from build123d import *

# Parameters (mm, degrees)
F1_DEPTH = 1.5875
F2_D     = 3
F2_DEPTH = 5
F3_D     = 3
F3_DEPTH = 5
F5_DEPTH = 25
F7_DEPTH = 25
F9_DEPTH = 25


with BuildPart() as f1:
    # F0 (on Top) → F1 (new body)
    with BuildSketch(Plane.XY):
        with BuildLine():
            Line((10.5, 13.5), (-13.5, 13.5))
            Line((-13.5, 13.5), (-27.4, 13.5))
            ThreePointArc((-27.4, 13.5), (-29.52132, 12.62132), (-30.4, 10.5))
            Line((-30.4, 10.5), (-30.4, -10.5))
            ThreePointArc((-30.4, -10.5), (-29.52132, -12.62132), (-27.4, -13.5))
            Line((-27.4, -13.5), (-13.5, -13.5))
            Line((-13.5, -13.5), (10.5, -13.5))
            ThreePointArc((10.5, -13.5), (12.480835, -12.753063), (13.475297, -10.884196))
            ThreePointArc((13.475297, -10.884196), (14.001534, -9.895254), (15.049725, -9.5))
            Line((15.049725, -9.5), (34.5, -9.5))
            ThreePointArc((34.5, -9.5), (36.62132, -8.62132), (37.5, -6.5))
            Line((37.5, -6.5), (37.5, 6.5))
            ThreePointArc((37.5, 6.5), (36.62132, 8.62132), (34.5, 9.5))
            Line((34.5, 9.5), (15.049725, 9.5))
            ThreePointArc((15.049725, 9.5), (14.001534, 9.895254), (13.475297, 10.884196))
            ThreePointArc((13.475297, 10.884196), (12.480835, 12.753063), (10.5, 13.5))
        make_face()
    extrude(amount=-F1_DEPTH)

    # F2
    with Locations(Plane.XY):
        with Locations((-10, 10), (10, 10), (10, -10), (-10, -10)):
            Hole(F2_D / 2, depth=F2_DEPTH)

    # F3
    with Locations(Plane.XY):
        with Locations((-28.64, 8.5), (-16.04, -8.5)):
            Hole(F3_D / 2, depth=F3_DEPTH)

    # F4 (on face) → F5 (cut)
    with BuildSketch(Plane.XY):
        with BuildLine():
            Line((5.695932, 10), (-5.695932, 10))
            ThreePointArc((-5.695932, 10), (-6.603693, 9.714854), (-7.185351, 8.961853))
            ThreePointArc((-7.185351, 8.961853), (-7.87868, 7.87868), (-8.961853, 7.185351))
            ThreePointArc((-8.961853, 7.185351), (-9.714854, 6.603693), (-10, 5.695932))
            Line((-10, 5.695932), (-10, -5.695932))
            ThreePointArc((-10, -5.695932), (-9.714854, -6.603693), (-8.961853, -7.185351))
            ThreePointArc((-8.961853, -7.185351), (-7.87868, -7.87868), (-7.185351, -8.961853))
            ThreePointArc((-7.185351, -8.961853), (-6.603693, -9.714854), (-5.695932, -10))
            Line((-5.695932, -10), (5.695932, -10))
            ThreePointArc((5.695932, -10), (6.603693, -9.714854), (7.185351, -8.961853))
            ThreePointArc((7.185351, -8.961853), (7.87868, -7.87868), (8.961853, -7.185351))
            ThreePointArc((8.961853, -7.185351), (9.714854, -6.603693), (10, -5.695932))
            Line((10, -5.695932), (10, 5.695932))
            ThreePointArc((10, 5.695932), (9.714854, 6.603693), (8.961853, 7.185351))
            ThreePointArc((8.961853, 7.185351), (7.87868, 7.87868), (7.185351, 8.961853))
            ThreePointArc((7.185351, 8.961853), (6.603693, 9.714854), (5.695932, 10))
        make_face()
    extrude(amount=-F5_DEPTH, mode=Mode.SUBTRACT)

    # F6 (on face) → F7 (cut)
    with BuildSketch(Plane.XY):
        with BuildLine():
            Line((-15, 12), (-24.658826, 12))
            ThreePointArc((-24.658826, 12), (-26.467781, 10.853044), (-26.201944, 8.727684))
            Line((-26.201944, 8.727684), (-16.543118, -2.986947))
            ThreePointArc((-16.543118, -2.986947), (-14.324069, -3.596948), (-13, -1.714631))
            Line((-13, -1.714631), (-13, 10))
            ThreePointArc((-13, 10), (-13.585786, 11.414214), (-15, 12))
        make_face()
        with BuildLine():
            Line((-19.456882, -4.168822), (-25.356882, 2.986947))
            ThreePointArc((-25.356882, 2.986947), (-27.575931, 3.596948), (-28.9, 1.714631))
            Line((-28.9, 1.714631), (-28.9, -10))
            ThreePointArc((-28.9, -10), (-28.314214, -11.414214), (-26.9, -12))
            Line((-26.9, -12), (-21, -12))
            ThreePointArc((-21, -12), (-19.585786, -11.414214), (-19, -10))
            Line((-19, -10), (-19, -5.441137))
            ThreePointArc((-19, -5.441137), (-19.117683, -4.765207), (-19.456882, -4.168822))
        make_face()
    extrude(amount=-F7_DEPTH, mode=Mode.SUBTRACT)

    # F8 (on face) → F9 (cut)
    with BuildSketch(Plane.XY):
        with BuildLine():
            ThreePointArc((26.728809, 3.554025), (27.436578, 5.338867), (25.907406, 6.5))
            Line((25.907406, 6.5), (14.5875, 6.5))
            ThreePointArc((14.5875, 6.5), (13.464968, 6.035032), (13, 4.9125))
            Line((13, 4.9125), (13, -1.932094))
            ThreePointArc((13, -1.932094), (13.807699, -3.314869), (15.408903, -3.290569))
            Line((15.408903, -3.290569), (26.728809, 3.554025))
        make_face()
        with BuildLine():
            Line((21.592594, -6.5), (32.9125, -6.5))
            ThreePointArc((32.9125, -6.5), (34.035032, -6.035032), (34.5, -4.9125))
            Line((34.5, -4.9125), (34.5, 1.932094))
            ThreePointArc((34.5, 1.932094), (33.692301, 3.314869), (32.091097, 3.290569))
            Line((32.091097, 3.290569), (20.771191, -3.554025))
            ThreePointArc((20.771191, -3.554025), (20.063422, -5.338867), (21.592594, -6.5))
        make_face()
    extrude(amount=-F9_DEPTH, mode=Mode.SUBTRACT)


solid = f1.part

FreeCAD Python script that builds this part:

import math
import FreeCAD as App
import Part
import Sketcher

doc = App.newDocument("Part")
params = doc.addObject("Spreadsheet::Sheet", "Params")
for row, (alias, value) in enumerate([
    ("sketch1_radius", "3.000001 mm"),
    ("sketch1_height", "21 mm"),
    ("sketch1_height2", "13 mm"),
    ("sketch1_width", "37.9 mm"),
    ("pad1_length", "1.5875 mm"),
    ("sketch2_diameter", "3 mm"),
    ("hole_diameter", "3 mm"),
    ("hole_depth", "5 mm"),
    ("sketch3_diameter", "3 mm"),
    ("hole2_diameter", "3 mm"),
    ("hole2_depth", "5 mm"),
    ("sketch4_radius", "3.000002 mm"),
    ("pocket1_length", "25 mm"),
    ("sketch5_radius", "2 mm"),
    ("sketch5_width", "5.9 mm"),
    ("pocket2_length", "25 mm"),
    ("pocket3_length", "25 mm"),
], start=1):
    params.set(f"A{row}", alias)
    params.set(f"B{row}", "=" + value)
    params.setAlias(f"B{row}", alias)

body = doc.addObject("PartDesign::Body", "Body")

sketch1 = body.newObject("Sketcher::SketchObject", "Sketch")
sketch1.AttachmentSupport = (doc.getObject("XY_Plane"), [""])
sketch1.MapMode = "FlatFace"
sketch1.addGeometry([
    Part.LineSegment(App.Vector(10.5, 13.5, 0), App.Vector(-27.4, 13.5, 0)),
    Part.ArcOfCircle(Part.Circle(App.Vector(-27.4, 10.5, 0), App.Vector(0, 0, 1), 3), math.radians(90), math.radians(180)),
    Part.LineSegment(App.Vector(-30.4, 10.5, 0), App.Vector(-30.4, -10.5, 0)),
    Part.ArcOfCircle(Part.Circle(App.Vector(-27.4, -10.5, 0), App.Vector(0, 0, 1), 3), math.radians(-180), math.radians(-90)),
    Part.LineSegment(App.Vector(-27.4, -13.5, 0), App.Vector(10.5, -13.5, 0)),
    Part.ArcOfCircle(Part.Circle(App.Vector(10.5, -10.5, 0), App.Vector(0, 0, 1), 3), math.radians(-90), math.radians(-7)),
    Part.ArcOfCircle(Part.Circle(App.Vector(15, -11.1, 0), App.Vector(0, 0, 1), 1.6), math.radians(90), math.radians(173)),
    Part.LineSegment(App.Vector(15, -9.5, 0), App.Vector(34.5, -9.5, 0)),
    Part.ArcOfCircle(Part.Circle(App.Vector(34.5, -6.5, 0), App.Vector(0, 0, 1), 3), math.radians(-90), math.radians(0)),
    Part.LineSegment(App.Vector(37.5, -6.5, 0), App.Vector(37.5, 6.5, 0)),
    Part.ArcOfCircle(Part.Circle(App.Vector(34.5, 6.5, 0), App.Vector(0, 0, 1), 3), math.radians(0), math.radians(90)),
    Part.LineSegment(App.Vector(34.5, 9.5, 0), App.Vector(15, 9.5, 0)),
    Part.ArcOfCircle(Part.Circle(App.Vector(15, 11.1, 0), App.Vector(0, 0, 1), 1.6), math.radians(-173), math.radians(-90)),
    Part.ArcOfCircle(Part.Circle(App.Vector(10.5, 10.5, 0), App.Vector(0, 0, 1), 3), math.radians(7), math.radians(90)),
], False)
sketch1.addConstraint([
    Sketcher.Constraint("Tangent", 0, 2, 1, 1),
    Sketcher.Constraint("Tangent", 1, 2, 2, 1),
    Sketcher.Constraint("Tangent", 2, 2, 3, 1),
    Sketcher.Constraint("Tangent", 3, 2, 4, 1),
    Sketcher.Constraint("Tangent", 4, 2, 5, 1),
    Sketcher.Constraint("Tangent", 5, 2, 6, 2),
    Sketcher.Constraint("Tangent", 6, 1, 7, 1),
    Sketcher.Constraint("Tangent", 7, 2, 8, 1),
    Sketcher.Constraint("Tangent", 8, 2, 9, 1),
    Sketcher.Constraint("Tangent", 9, 2, 10, 1),
    Sketcher.Constraint("Tangent", 10, 2, 11, 1),
    Sketcher.Constraint("Tangent", 11, 2, 12, 2),
    Sketcher.Constraint("Tangent", 12, 1, 13, 1),
    Sketcher.Constraint("Tangent", 13, 2, 0, 1),
    Sketcher.Constraint("Horizontal", 0),
    Sketcher.Constraint("Vertical", 2),
    Sketcher.Constraint("Horizontal", 4),
    Sketcher.Constraint("Horizontal", 7),
    Sketcher.Constraint("Vertical", 9),
    Sketcher.Constraint("Horizontal", 11),
    Sketcher.Constraint("Equal", 1, 3),
    Sketcher.Constraint("Equal", 3, 5),
    Sketcher.Constraint("Equal", 5, 8),
    Sketcher.Constraint("Equal", 8, 10),
    Sketcher.Constraint("Equal", 6, 12),
    Sketcher.Constraint("Equal", 10, 13),
    Sketcher.Constraint("Symmetric", 6, 3, 12, 3, -1),
    Sketcher.Constraint("Vertical", 5, 3, 13, 3),
    Sketcher.Constraint("Radius", 1, 3.000001),
    Sketcher.Constraint("DistanceY", 2, 2, 2, 1, 21.0),
    Sketcher.Constraint("DistanceY", 9, 1, 9, 2, 13.0),
    Sketcher.Constraint("DistanceX", 0, 2, 0, 1, 37.9),
    Sketcher.Constraint("DistanceX", 5, 3, 8, 3, 23.999999),
    Sketcher.Constraint("DistanceX", 1, 3, -1, 1, 27.399999),
    Sketcher.Constraint("Radius", 6, 1.587501),
])
sketch1.setExpression("Constraints[28]", "Params.sketch1_radius")
sketch1.setExpression("Constraints[29]", "Params.sketch1_height")
sketch1.setExpression("Constraints[30]", "Params.sketch1_height2")
sketch1.setExpression("Constraints[31]", "Params.sketch1_width")
pad1 = body.newObject("PartDesign::Pad", "Pad")
pad1.Profile = sketch1
pad1.setExpression("Length", "Params.pad1_length")
pad1.Reversed = True

sketch2 = body.newObject("Sketcher::SketchObject", "Sketch001")
sketch2.AttachmentSupport = (doc.getObject("XY_Plane"), [""])
sketch2.MapMode = "FlatFace"
sketch2.addGeometry([
    Part.Circle(App.Vector(-10, 10, 0), App.Vector(0, 0, 1), 1.5),
    Part.Circle(App.Vector(10, 10, 0), App.Vector(0, 0, 1), 1.5),
    Part.Circle(App.Vector(10, -10, 0), App.Vector(0, 0, 1), 1.5),
    Part.Circle(App.Vector(-10, -10, 0), App.Vector(0, 0, 1), 1.5),
], False)
sketch2.addConstraint([
    Sketcher.Constraint("Equal", 0, 1),
    Sketcher.Constraint("Equal", 1, 2),
    Sketcher.Constraint("Equal", 2, 3),
    Sketcher.Constraint("Symmetric", 0, 3, 2, 3, -1, 1),
    Sketcher.Constraint("Symmetric", 1, 3, 3, 3, -1, 1),
    Sketcher.Constraint("Symmetric", 0, 3, 1, 3, -2),
    Sketcher.Constraint("Diameter", 0, 3.0),
    Sketcher.Constraint("DistanceX", 0, 3, -1, 1, 10.0),
    Sketcher.Constraint("DistanceY", -1, 1, 0, 3, 10.0),
])
sketch2.setExpression("Constraints[6]", "Params.sketch2_diameter")
doc.recompute()
hole = body.newObject("PartDesign::Hole", "Hole")
hole.Profile = sketch2
hole.ThreadType = "None"
hole.setExpression("Diameter", "Params.hole_diameter")
hole.DepthType = "Dimension"
hole.setExpression("Depth", "Params.hole_depth")
hole.DrillPoint = "Flat"

sketch3 = body.newObject("Sketcher::SketchObject", "Sketch002")
sketch3.AttachmentSupport = (doc.getObject("XY_Plane"), [""])
sketch3.MapMode = "FlatFace"
sketch3.addGeometry([
    Part.Circle(App.Vector(-28.6, 8.5, 0), App.Vector(0, 0, 1), 1.5),
    Part.Circle(App.Vector(-16, -8.5, 0), App.Vector(0, 0, 1), 1.5),
], False)
sketch3.addConstraint([
    Sketcher.Constraint("Equal", 0, 1),
    Sketcher.Constraint("Diameter", 0, 3.0),
    Sketcher.Constraint("DistanceY", 1, 3, 0, 3, 17.0),
    Sketcher.Constraint("DistanceY", -1, 1, 0, 3, 8.5),
    Sketcher.Constraint("DistanceX", 0, 3, 1, 3, 12.6),
    Sketcher.Constraint("DistanceX", 0, 3, -1, 1, 28.64),
])
sketch3.setExpression("Constraints[1]", "Params.sketch3_diameter")
doc.recompute()
hole2 = body.newObject("PartDesign::Hole", "Hole001")
hole2.Profile = sketch3
hole2.ThreadType = "None"
hole2.setExpression("Diameter", "Params.hole2_diameter")
hole2.DepthType = "Dimension"
hole2.setExpression("Depth", "Params.hole2_depth")
hole2.DrillPoint = "Flat"

sketch4 = body.newObject("Sketcher::SketchObject", "Sketch003")
sketch4.AttachmentSupport = (doc.getObject("XY_Plane"), [""])
sketch4.MapMode = "FlatFace"
sketch4.addGeometry([
    Part.LineSegment(App.Vector(5.7, 10, 0), App.Vector(-5.7, 10, 0)),
    Part.ArcOfCircle(Part.Circle(App.Vector(-5.7, 8.4, 0), App.Vector(0, 0, 1), 1.6), math.radians(90), math.radians(160)),
    Part.ArcOfCircle(Part.Circle(App.Vector(-10, 10, 0), App.Vector(0, 0, 1), 3), math.radians(-70), math.radians(-20)),
    Part.ArcOfCircle(Part.Circle(App.Vector(-8.4, 5.7, 0), App.Vector(0, 0, 1), 1.6), math.radians(110), math.radians(180)),
    Part.LineSegment(App.Vector(-10, 5.7, 0), App.Vector(-10, -5.7, 0)),
    Part.ArcOfCircle(Part.Circle(App.Vector(-8.4, -5.7, 0), App.Vector(0, 0, 1), 1.6), math.radians(-180), math.radians(-110)),
    Part.ArcOfCircle(Part.Circle(App.Vector(-10, -10, 0), App.Vector(0, 0, 1), 3), math.radians(20), math.radians(70)),
    Part.ArcOfCircle(Part.Circle(App.Vector(-5.7, -8.4, 0), App.Vector(0, 0, 1), 1.6), math.radians(-160), math.radians(-90)),
    Part.LineSegment(App.Vector(-5.7, -10, 0), App.Vector(5.7, -10, 0)),
    Part.ArcOfCircle(Part.Circle(App.Vector(5.7, -8.4, 0), App.Vector(0, 0, 1), 1.6), math.radians(-90), math.radians(-20)),
    Part.ArcOfCircle(Part.Circle(App.Vector(10, -10, 0), App.Vector(0, 0, 1), 3), math.radians(110), math.radians(160)),
    Part.ArcOfCircle(Part.Circle(App.Vector(8.4, -5.7, 0), App.Vector(0, 0, 1), 1.6), math.radians(-70), math.radians(0)),
    Part.LineSegment(App.Vector(10, -5.7, 0), App.Vector(10, 5.7, 0)),
    Part.ArcOfCircle(Part.Circle(App.Vector(8.4, 5.7, 0), App.Vector(0, 0, 1), 1.6), math.radians(0), math.radians(70)),
    Part.ArcOfCircle(Part.Circle(App.Vector(10, 10, 0), App.Vector(0, 0, 1), 3), math.radians(-160), math.radians(-110)),
    Part.ArcOfCircle(Part.Circle(App.Vector(5.7, 8.4, 0), App.Vector(0, 0, 1), 1.6), math.radians(20), math.radians(90)),
], False)
sketch4.addConstraint([
    Sketcher.Constraint("Tangent", 0, 2, 1, 1),
    Sketcher.Constraint("Tangent", 1, 2, 2, 2),
    Sketcher.Constraint("Tangent", 2, 1, 3, 1),
    Sketcher.Constraint("Tangent", 3, 2, 4, 1),
    Sketcher.Constraint("Tangent", 4, 2, 5, 1),
    Sketcher.Constraint("Tangent", 5, 2, 6, 2),
    Sketcher.Constraint("Tangent", 6, 1, 7, 1),
    Sketcher.Constraint("Tangent", 7, 2, 8, 1),
    Sketcher.Constraint("Tangent", 8, 2, 9, 1),
    Sketcher.Constraint("Tangent", 9, 2, 10, 2),
    Sketcher.Constraint("Tangent", 10, 1, 11, 1),
    Sketcher.Constraint("Tangent", 11, 2, 12, 1),
    Sketcher.Constraint("Tangent", 12, 2, 13, 1),
    Sketcher.Constraint("Tangent", 13, 2, 14, 2),
    Sketcher.Constraint("Tangent", 14, 1, 15, 1),
    Sketcher.Constraint("Tangent", 15, 2, 0, 1),
    Sketcher.Constraint("Horizontal", 0),
    Sketcher.Constraint("Vertical", 4),
    Sketcher.Constraint("Horizontal", 8),
    Sketcher.Constraint("Vertical", 12),
    Sketcher.Constraint("Equal", 1, 3),
    Sketcher.Constraint("Equal", 3, 5),
    Sketcher.Constraint("Equal", 2, 6),
    Sketcher.Constraint("Equal", 5, 7),
    Sketcher.Constraint("Equal", 7, 9),
    Sketcher.Constraint("Equal", 6, 10),
    Sketcher.Constraint("Equal", 9, 11),
    Sketcher.Constraint("Equal", 11, 13),
    Sketcher.Constraint("Equal", 10, 14),
    Sketcher.Constraint("Equal", 13, 15),
    Sketcher.Constraint("Symmetric", 1, 3, 9, 3, -1, 1),
    Sketcher.Constraint("Symmetric", 3, 3, 11, 3, -1, 1),
    Sketcher.Constraint("Symmetric", 6, 3, 14, 3, -1, 1),
    Sketcher.Constraint("Symmetric", 6, 3, 10, 3, -2),
    Sketcher.Constraint("Horizontal", 14, 3, 0, 2),
    Sketcher.Constraint("Vertical", 6, 3, 3, 2),
    Sketcher.Constraint("Equal", 8, 4),
    Sketcher.Constraint("Radius", 2, 3.000002),
    Sketcher.Constraint("DistanceX", 2, 3, -1, 1, 10.000001),
    Sketcher.Constraint("Radius", 1, 1.587502),
])
sketch4.setExpression("Constraints[37]", "Params.sketch4_radius")
pocket1 = body.newObject("PartDesign::Pocket", "Pocket")
pocket1.Profile = sketch4
pocket1.setExpression("Length", "Params.pocket1_length")

sketch5 = body.newObject("Sketcher::SketchObject", "Sketch004")
sketch5.AttachmentSupport = (doc.getObject("XY_Plane"), [""])
sketch5.MapMode = "FlatFace"
sketch5.addGeometry([
    Part.LineSegment(App.Vector(-15, 12, 0), App.Vector(-24.7, 12, 0)),
    Part.ArcOfCircle(Part.Circle(App.Vector(-24.7, 10, 0), App.Vector(0, 0, 1), 2), math.radians(90), math.radians(220)),
    Part.LineSegment(App.Vector(-26.2, 8.7, 0), App.Vector(-16.5, -3, 0)),
    Part.ArcOfCircle(Part.Circle(App.Vector(-15, -1.7, 0), App.Vector(0, 0, 1), 2), math.radians(-140), math.radians(0)),
    Part.LineSegment(App.Vector(-13, -1.7, 0), App.Vector(-13, 10, 0)),
    Part.ArcOfCircle(Part.Circle(App.Vector(-15, 10, 0), App.Vector(0, 0, 1), 2), math.radians(0), math.radians(90)),
    Part.LineSegment(App.Vector(-19.5, -4.2, 0), App.Vector(-25.4, 3, 0)),
    Part.ArcOfCircle(Part.Circle(App.Vector(-26.9, 1.7, 0), App.Vector(0, 0, 1), 2), math.radians(40), math.radians(180)),
    Part.LineSegment(App.Vector(-28.9, 1.7, 0), App.Vector(-28.9, -10, 0)),
    Part.ArcOfCircle(Part.Circle(App.Vector(-26.9, -10, 0), App.Vector(0, 0, 1), 2), math.radians(180), math.radians(270)),
    Part.LineSegment(App.Vector(-26.9, -12, 0), App.Vector(-21, -12, 0)),
    Part.ArcOfCircle(Part.Circle(App.Vector(-21, -10, 0), App.Vector(0, 0, 1), 2), math.radians(-90), math.radians(0)),
    Part.LineSegment(App.Vector(-19, -10, 0), App.Vector(-19, -5.4, 0)),
    Part.ArcOfCircle(Part.Circle(App.Vector(-21, -5.4, 0), App.Vector(0, 0, 1), 2), math.radians(0), math.radians(40)),
], False)
sketch5.addConstraint([
    Sketcher.Constraint("Tangent", 0, 2, 1, 1),
    Sketcher.Constraint("Tangent", 1, 2, 2, 1),
    Sketcher.Constraint("Tangent", 2, 2, 3, 1),
    Sketcher.Constraint("Tangent", 3, 2, 4, 1),
    Sketcher.Constraint("Tangent", 4, 2, 5, 1),
    Sketcher.Constraint("Tangent", 5, 2, 0, 1),
    Sketcher.Constraint("Tangent", 6, 2, 7, 1),
    Sketcher.Constraint("Tangent", 7, 2, 8, 1),
    Sketcher.Constraint("Tangent", 8, 2, 9, 1),
    Sketcher.Constraint("Tangent", 9, 2, 10, 1),
    Sketcher.Constraint("Tangent", 10, 2, 11, 1),
    Sketcher.Constraint("Tangent", 11, 2, 12, 1),
    Sketcher.Constraint("Tangent", 12, 2, 13, 1),
    Sketcher.Constraint("Tangent", 13, 2, 6, 1),
    Sketcher.Constraint("Horizontal", 0),
    Sketcher.Constraint("Vertical", 4),
    Sketcher.Constraint("Vertical", 8),
    Sketcher.Constraint("Horizontal", 10),
    Sketcher.Constraint("Vertical", 12),
    Sketcher.Constraint("Equal", 1, 3),
    Sketcher.Constraint("Equal", 3, 5),
    Sketcher.Constraint("Equal", 5, 7),
    Sketcher.Constraint("Equal", 7, 9),
    Sketcher.Constraint("Equal", 9, 11),
    Sketcher.Constraint("Parallel", 2, 6),
    Sketcher.Constraint("Equal", 4, 8),
    Sketcher.Constraint("Radius", 1, 2.0),
    Sketcher.Constraint("DistanceX", 10, 1, 10, 2, 5.9),
    Sketcher.Constraint("DistanceY", -1, 1, 1, 3, 10.0),
    Sketcher.Constraint("DistanceX", 3, 3, -1, 1, 15.0),
    Sketcher.Constraint("DistanceY", 9, 3, -1, 1, 10.000001),
    Sketcher.Constraint("DistanceX", 11, 3, -1, 1, 20.999999),
    Sketcher.Constraint("DistanceX", 9, 3, 13, 3, 5.899999),
    Sketcher.Constraint("DistanceY", 4, 1, 4, 2, 11.714631),
    Sketcher.Constraint("Distance", 6, 9.274429),
])
sketch5.setExpression("Constraints[26]", "Params.sketch5_radius")
sketch5.setExpression("Constraints[27]", "Params.sketch5_width")
pocket2 = body.newObject("PartDesign::Pocket", "Pocket001")
pocket2.Profile = sketch5
pocket2.setExpression("Length", "Params.pocket2_length")

sketch6 = body.newObject("Sketcher::SketchObject", "Sketch005")
sketch6.AttachmentSupport = (doc.getObject("XY_Plane"), [""])
sketch6.MapMode = "FlatFace"
sketch6.addGeometry([
    Part.ArcOfCircle(Part.Circle(App.Vector(25.9, 4.9, 0), App.Vector(0, 0, 1), 1.6), math.radians(-59), math.radians(90)),
    Part.LineSegment(App.Vector(25.9, 6.5, 0), App.Vector(14.6, 6.5, 0)),
    Part.ArcOfCircle(Part.Circle(App.Vector(14.6, 4.9, 0), App.Vector(0, 0, 1), 1.6), math.radians(90), math.radians(180)),
    Part.LineSegment(App.Vector(13, 4.9, 0), App.Vector(13, -1.9, 0)),
    Part.ArcOfCircle(Part.Circle(App.Vector(14.6, -1.9, 0), App.Vector(0, 0, 1), 1.6), math.radians(-180), math.radians(-59)),
    Part.LineSegment(App.Vector(15.4, -3.3, 0), App.Vector(26.7, 3.6, 0)),
    Part.LineSegment(App.Vector(21.6, -6.5, 0), App.Vector(32.9, -6.5, 0)),
    Part.ArcOfCircle(Part.Circle(App.Vector(32.9, -4.9, 0), App.Vector(0, 0, 1), 1.6), math.radians(-90), math.radians(0)),
    Part.LineSegment(App.Vector(34.5, -4.9, 0), App.Vector(34.5, 1.9, 0)),
    Part.ArcOfCircle(Part.Circle(App.Vector(32.9, 1.9, 0), App.Vector(0, 0, 1), 1.6), math.radians(0), math.radians(121)),
    Part.LineSegment(App.Vector(32.1, 3.3, 0), App.Vector(20.8, -3.6, 0)),
    Part.ArcOfCircle(Part.Circle(App.Vector(21.6, -4.9, 0), App.Vector(0, 0, 1), 1.6), math.radians(121), math.radians(270)),
], False)
sketch6.addConstraint([
    Sketcher.Constraint("Tangent", 0, 2, 1, 1),
    Sketcher.Constraint("Tangent", 1, 2, 2, 1),
    Sketcher.Constraint("Tangent", 2, 2, 3, 1),
    Sketcher.Constraint("Tangent", 3, 2, 4, 1),
    Sketcher.Constraint("Tangent", 4, 2, 5, 1),
    Sketcher.Constraint("Tangent", 5, 2, 0, 1),
    Sketcher.Constraint("Tangent", 6, 2, 7, 1),
    Sketcher.Constraint("Tangent", 7, 2, 8, 1),
    Sketcher.Constraint("Tangent", 8, 2, 9, 1),
    Sketcher.Constraint("Tangent", 9, 2, 10, 1),
    Sketcher.Constraint("Tangent", 10, 2, 11, 1),
    Sketcher.Constraint("Tangent", 11, 2, 6, 1),
    Sketcher.Constraint("Horizontal", 1),
    Sketcher.Constraint("Vertical", 3),
    Sketcher.Constraint("Horizontal", 6),
    Sketcher.Constraint("Vertical", 8),
    Sketcher.Constraint("Equal", 0, 2),
    Sketcher.Constraint("Equal", 2, 4),
    Sketcher.Constraint("Equal", 4, 7),
    Sketcher.Constraint("Equal", 7, 9),
    Sketcher.Constraint("Equal", 9, 11),
    Sketcher.Constraint("Parallel", 5, 10),
    Sketcher.Constraint("Equal", 1, 6),
    Sketcher.Constraint("DistanceX", -1, 1, 2, 2, 13.0),
    Sketcher.Constraint("DistanceY", -1, 1, 0, 2, 6.5),
    Sketcher.Constraint("DistanceY", 6, 2, -1, 1, 6.5),
    Sketcher.Constraint("DistanceX", -1, 1, 7, 2, 34.5),
    Sketcher.Constraint("Radius", 0, 1.5875),
    Sketcher.Constraint("Distance", 5, 13.228331),
    Sketcher.Constraint("DistanceX", 1, 2, 1, 1, 11.319906),
])
pocket3 = body.newObject("PartDesign::Pocket", "Pocket002")
pocket3.Profile = sketch6
pocket3.setExpression("Length", "Params.pocket3_length")

doc.recompute()
